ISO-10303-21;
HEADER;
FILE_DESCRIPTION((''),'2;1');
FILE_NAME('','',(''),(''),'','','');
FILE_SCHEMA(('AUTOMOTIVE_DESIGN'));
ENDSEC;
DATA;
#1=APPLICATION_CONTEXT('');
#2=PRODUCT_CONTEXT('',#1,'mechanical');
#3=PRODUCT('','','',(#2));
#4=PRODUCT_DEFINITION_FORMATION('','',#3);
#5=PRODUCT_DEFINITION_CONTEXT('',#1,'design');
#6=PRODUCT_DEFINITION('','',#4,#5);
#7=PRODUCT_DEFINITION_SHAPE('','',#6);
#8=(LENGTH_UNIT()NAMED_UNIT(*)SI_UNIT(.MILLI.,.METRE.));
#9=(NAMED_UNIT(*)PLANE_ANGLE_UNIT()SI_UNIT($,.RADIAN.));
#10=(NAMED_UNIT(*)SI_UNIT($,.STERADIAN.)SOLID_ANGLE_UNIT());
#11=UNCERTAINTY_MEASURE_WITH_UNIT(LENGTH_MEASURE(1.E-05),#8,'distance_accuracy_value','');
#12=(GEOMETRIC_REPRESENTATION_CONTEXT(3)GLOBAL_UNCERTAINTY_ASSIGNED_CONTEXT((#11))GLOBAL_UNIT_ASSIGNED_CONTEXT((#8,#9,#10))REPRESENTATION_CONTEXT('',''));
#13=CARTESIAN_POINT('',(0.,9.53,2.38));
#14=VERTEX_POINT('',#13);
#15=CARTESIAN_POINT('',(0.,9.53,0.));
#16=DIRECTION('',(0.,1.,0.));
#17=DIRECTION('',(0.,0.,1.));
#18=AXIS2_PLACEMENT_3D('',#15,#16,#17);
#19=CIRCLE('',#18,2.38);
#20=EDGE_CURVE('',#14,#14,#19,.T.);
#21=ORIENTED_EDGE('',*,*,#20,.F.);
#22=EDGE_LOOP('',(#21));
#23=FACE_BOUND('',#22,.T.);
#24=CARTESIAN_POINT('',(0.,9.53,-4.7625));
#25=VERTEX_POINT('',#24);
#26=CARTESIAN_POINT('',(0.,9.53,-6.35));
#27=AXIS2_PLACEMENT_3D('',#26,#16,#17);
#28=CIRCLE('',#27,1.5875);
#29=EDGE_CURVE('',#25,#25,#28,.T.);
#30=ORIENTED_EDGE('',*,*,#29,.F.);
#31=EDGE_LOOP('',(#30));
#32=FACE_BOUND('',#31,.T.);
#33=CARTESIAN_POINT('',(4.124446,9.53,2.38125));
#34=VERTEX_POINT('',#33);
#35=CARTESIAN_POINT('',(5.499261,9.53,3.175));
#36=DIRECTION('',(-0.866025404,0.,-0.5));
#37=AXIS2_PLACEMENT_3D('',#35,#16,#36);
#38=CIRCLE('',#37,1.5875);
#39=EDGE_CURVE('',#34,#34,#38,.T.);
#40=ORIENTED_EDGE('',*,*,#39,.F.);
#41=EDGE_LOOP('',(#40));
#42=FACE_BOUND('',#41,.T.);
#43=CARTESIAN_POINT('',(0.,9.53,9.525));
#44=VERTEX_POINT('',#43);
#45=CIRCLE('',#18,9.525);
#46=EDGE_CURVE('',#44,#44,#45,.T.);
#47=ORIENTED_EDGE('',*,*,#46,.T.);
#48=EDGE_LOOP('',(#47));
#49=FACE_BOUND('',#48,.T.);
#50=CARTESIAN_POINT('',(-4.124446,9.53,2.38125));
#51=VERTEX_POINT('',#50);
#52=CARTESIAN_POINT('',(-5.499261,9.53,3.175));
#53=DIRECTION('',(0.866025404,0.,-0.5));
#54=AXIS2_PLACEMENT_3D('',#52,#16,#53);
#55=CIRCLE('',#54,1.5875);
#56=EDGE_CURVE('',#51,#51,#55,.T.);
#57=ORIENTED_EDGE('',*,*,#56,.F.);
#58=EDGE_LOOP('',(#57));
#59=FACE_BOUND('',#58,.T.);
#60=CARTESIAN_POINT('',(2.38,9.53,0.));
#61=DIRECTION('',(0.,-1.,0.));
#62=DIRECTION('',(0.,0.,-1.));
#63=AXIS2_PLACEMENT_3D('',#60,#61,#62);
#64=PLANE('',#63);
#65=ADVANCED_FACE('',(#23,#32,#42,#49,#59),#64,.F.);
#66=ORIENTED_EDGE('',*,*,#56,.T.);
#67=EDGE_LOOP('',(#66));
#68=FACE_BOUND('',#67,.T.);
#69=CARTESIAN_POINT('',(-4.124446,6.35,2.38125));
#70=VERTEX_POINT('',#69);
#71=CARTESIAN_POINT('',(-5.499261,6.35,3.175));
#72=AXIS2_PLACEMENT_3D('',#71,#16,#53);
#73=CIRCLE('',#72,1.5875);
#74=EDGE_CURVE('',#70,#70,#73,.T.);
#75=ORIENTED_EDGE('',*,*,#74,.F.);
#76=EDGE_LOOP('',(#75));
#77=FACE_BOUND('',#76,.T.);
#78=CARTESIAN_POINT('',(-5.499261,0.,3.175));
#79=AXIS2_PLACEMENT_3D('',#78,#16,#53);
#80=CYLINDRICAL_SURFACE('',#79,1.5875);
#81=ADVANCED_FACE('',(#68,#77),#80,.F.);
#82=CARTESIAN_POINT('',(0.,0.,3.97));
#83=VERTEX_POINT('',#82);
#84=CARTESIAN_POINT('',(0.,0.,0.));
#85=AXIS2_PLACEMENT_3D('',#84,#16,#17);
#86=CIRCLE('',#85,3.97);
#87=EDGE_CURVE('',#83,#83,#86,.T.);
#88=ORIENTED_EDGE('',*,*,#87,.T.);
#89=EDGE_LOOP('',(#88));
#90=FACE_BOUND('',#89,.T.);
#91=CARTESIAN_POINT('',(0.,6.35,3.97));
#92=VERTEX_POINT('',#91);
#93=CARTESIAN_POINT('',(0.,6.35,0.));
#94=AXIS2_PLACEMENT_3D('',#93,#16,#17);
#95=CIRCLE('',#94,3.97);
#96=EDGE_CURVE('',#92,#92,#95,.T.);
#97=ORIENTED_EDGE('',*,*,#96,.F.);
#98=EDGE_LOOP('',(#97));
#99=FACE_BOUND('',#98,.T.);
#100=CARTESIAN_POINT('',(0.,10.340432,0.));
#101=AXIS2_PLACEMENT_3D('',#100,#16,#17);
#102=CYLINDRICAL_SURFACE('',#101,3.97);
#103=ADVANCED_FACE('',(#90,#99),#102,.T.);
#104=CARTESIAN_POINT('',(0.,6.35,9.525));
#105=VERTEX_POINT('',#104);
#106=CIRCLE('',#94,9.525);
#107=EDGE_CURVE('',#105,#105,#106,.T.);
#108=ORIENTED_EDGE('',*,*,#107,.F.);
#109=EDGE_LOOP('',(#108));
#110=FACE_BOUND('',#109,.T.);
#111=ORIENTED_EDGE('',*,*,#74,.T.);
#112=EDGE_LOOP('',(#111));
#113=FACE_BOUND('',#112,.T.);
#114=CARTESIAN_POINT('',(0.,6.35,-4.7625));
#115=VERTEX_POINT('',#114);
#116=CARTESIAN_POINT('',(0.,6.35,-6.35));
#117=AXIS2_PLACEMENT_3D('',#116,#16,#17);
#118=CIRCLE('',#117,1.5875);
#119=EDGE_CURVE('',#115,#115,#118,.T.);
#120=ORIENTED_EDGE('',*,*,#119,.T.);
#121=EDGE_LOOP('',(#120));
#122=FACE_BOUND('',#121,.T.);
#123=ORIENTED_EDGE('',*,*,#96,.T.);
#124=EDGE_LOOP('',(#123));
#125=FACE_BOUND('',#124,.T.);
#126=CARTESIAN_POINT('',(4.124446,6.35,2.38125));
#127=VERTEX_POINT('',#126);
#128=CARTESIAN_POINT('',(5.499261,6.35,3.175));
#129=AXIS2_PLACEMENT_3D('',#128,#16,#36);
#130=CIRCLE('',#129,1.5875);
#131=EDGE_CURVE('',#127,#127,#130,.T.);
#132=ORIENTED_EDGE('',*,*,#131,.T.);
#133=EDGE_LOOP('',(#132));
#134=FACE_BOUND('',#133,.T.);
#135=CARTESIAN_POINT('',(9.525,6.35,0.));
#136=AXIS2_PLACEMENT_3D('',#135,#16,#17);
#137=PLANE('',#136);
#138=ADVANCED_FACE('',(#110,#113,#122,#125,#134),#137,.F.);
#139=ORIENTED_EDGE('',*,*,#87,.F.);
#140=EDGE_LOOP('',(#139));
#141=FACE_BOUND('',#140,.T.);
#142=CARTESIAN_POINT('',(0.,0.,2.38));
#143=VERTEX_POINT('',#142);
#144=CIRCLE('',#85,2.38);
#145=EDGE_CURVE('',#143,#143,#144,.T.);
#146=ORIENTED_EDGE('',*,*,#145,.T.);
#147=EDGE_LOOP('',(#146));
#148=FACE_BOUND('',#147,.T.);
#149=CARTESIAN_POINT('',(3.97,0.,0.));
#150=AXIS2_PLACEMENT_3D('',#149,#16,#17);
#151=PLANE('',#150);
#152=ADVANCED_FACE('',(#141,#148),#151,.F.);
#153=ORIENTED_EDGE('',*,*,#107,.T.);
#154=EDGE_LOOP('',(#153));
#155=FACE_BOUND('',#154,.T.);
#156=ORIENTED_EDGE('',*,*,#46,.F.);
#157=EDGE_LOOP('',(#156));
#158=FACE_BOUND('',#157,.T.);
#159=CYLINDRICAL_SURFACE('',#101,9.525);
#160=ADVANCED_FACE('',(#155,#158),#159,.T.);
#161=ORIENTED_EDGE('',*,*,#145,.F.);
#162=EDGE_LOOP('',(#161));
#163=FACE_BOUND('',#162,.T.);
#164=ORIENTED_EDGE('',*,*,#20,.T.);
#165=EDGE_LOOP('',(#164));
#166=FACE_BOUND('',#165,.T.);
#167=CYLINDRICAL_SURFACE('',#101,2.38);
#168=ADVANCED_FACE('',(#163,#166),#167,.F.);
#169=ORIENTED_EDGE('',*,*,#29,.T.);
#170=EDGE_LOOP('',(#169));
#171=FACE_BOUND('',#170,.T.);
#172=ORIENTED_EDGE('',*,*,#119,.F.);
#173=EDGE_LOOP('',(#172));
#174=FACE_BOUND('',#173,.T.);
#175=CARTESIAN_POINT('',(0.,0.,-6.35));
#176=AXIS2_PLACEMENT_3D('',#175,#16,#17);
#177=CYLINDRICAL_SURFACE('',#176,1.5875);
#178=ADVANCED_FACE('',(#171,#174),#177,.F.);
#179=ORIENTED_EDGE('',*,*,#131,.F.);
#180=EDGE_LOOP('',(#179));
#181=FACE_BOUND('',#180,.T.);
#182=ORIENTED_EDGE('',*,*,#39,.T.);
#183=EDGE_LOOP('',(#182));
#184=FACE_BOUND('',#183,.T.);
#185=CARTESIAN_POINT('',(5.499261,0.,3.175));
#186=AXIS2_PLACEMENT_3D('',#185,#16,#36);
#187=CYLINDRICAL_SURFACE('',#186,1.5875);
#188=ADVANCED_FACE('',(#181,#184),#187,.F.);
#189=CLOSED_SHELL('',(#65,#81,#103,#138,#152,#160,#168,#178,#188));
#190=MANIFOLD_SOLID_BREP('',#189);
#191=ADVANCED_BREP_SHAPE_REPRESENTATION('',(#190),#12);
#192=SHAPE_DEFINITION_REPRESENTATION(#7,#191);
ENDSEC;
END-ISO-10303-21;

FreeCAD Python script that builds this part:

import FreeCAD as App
import Part
import Sketcher
from FreeCAD import Vector
Q = App.Units.Quantity


def add_polygon(sketch, points):
    """Adds a closed chain of lines whose ends are joined by coincident constraints."""
    first, n = sketch.GeometryCount, len(points)
    for a, b in zip(points, points[1:] + points[:1]):
        sketch.addGeometry(Part.LineSegment(App.Vector(*a, 0), App.Vector(*b, 0)), False)
    for i in range(n):
        sketch.addConstraint(Sketcher.Constraint("Coincident", first + i, 2, first + (i + 1) % n, 1))

doc = App.newDocument("Part")
body = doc.addObject("PartDesign::Body", "Body")

# Sketch on XY plane
sketch1 = body.newObject("Sketcher::SketchObject", "Sketch")
sketch1.AttachmentSupport = (doc.getObject("XY_Plane"), [""])
sketch1.MapMode = "FlatFace"
add_polygon(sketch1, [(9.5, 9.5), (2.4, 9.5), (2.4, 0), (4, 0), (4, 6.3), (9.5, 6.3)])  # lines 0-5
sketch1.addConstraint([
    Sketcher.Constraint("Horizontal", 0),
    Sketcher.Constraint("Vertical", 1),
    Sketcher.Constraint("Horizontal", 2),
    Sketcher.Constraint("Vertical", 3),
    Sketcher.Constraint("Horizontal", 4),
    Sketcher.Constraint("Vertical", 5),
    Sketcher.Constraint("PointOnObject", 1, 2, -1),
    Sketcher.Constraint("DistanceY", 3, 1, 3, 2, Q("0.25 in")),
    Sketcher.Constraint("DistanceX", -1, 1, 4, 2, Q("0.375 in")),
    Sketcher.Constraint("DistanceX", 0, 2, 0, 1, 7.145),
    Sketcher.Constraint("DistanceX", 2, 1, 2, 2, 1.59),
    Sketcher.Constraint("DistanceY", 1, 2, 1, 1, 9.53),
])
revolution = body.newObject("PartDesign::Revolution", "Revolution")
revolution.Profile = sketch1
revolution.ReferenceAxis = (sketch1, ["V_Axis"])
revolution.Angle = 360

# Sketch on XZ plane
sketch2 = body.newObject("Sketcher::SketchObject", "Sketch001")
sketch2.AttachmentSupport = (doc.getObject("XZ_Plane"), [""])
sketch2.MapMode = "FlatFace"
sketch2.AttachmentOffset = App.Placement(Vector(0, 0, -9.53), App.Rotation())
sketch2.addGeometry(Part.Circle(Vector(0, -6.3, 0), Vector(0, 0, 1), 1.6), False)
sketch2.addConstraint([
    Sketcher.Constraint("PointOnObject", 0, 3, -2),
    Sketcher.Constraint("Diameter", 0, Q("0.125 in")),
    Sketcher.Constraint("DistanceY", 0, 3, -1, 1, Q("0.25 in")),
])
pocket1 = body.newObject("PartDesign::Pocket", "Pocket")
pocket1.Profile = sketch2
pocket1.Type = "ThroughAll"
pocket1.Reversed = True
doc.recompute()

polarpattern = body.newObject("PartDesign::PolarPattern", "PolarPattern")
polarpattern.Originals = [pocket1]
polarpattern.Axis = (doc.getObject("Y_Axis"), [""])
polarpattern.Angle = 360
polarpattern.Occurrences = 3
body.Tip = polarpattern

doc.recompute()
